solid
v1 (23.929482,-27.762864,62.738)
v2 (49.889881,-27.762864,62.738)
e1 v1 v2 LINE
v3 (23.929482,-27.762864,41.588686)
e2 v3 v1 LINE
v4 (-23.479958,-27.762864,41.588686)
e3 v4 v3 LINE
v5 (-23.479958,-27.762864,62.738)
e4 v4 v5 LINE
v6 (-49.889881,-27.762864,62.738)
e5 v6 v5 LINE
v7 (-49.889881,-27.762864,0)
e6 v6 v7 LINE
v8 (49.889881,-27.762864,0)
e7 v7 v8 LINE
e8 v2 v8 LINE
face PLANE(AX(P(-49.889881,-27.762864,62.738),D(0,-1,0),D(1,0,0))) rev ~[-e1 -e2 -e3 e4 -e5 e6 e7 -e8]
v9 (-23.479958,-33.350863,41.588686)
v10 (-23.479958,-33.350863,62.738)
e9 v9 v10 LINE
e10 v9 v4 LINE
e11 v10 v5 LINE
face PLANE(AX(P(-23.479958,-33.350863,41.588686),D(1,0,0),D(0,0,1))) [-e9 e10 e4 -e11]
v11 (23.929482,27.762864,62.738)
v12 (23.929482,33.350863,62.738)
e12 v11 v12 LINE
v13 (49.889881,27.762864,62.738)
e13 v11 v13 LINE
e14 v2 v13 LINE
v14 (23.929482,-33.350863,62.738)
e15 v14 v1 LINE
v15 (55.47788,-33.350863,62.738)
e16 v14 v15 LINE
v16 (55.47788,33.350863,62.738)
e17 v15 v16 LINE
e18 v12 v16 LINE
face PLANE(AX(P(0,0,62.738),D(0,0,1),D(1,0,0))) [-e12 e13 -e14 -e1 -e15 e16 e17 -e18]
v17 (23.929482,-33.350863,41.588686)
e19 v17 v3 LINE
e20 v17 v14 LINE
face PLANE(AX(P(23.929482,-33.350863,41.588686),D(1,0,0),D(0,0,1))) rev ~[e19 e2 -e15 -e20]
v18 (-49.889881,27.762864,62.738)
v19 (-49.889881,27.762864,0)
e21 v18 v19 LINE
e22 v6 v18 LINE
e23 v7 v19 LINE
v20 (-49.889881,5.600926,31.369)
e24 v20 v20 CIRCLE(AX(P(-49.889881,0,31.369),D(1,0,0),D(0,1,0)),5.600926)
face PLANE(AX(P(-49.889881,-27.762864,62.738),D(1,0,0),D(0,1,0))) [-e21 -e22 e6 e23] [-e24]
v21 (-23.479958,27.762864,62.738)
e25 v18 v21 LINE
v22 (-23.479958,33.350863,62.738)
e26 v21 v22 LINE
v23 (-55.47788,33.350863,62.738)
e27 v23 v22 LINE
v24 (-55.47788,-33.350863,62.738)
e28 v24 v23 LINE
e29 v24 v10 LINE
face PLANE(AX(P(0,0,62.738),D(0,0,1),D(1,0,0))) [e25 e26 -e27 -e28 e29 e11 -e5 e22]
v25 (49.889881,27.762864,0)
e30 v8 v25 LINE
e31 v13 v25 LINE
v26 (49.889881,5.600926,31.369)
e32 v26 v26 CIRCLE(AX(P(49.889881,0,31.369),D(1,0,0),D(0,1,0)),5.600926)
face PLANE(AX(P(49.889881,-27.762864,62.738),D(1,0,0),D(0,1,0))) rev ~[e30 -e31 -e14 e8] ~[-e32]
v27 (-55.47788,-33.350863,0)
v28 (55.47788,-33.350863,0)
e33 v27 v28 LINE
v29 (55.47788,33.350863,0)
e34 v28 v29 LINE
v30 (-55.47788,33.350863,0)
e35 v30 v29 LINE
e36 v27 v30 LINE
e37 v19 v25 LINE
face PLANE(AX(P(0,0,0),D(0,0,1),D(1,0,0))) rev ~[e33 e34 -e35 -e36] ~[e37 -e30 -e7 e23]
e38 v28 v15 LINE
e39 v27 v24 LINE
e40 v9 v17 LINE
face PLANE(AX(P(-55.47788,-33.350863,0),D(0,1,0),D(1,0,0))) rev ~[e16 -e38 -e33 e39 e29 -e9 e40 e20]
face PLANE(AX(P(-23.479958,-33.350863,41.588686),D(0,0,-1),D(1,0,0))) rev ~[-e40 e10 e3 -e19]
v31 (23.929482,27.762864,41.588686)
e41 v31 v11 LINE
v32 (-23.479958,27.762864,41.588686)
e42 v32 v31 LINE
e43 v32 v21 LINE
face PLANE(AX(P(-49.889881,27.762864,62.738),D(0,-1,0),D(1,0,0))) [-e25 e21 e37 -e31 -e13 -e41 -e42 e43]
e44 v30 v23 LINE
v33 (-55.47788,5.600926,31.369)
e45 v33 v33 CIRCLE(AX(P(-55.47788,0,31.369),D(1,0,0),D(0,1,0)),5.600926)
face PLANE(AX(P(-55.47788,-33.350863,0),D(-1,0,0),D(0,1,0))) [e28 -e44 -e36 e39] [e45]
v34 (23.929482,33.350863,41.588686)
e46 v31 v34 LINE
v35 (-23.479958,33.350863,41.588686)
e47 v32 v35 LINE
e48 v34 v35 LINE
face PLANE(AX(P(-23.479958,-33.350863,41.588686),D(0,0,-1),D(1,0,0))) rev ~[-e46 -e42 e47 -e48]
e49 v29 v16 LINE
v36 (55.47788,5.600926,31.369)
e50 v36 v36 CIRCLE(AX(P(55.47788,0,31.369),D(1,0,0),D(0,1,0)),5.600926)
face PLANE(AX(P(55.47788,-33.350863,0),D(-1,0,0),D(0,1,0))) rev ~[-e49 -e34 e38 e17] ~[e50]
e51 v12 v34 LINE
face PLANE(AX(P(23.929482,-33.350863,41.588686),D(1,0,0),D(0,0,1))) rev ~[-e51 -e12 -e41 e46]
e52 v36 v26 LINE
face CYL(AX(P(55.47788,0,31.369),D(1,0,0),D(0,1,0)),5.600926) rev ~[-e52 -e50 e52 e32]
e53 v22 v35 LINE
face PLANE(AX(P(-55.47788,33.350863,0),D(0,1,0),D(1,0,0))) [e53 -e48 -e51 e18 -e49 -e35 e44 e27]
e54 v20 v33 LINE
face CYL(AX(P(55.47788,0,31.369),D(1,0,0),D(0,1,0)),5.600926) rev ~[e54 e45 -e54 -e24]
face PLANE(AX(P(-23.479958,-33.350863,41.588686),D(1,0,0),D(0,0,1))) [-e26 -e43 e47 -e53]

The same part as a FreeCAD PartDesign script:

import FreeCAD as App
import Part
import Sketcher

V = App.Vector
Q = App.Units.Quantity


def add_polygon(sketch, points):
    """Adds a closed chain of lines whose ends are joined by coincident constraints."""
    first, n = sketch.GeometryCount, len(points)
    for a, b in zip(points, points[1:] + points[:1]):
        sketch.addGeometry(Part.LineSegment(App.Vector(*a, 0), App.Vector(*b, 0)), False)
    for i in range(n):
        sketch.addConstraint(Sketcher.Constraint("Coincident", first + i, 2, first + (i + 1) % n, 1))

doc = App.newDocument("Part")
body = doc.addObject("PartDesign::Body", "Body")

# Sketch on XY plane
sketch1 = body.newObject("Sketcher::SketchObject", "Sketch")
sketch1.AttachmentSupport = (doc.getObject("XY_Plane"), [""])
sketch1.MapMode = "FlatFace"
add_polygon(sketch1, [(-55, 33), (-55, -33), (55, -33), (55, 33)])  # lines 0-3
sketch1.addConstraint([
    Sketcher.Constraint("Vertical", 0),
    Sketcher.Constraint("Horizontal", 1),
    Sketcher.Constraint("Vertical", 2),
    Sketcher.Constraint("Horizontal", 3),
    Sketcher.Constraint("Symmetric", 0, 2, 2, 2, -1, 1),
    Sketcher.Constraint("DistanceX", 1, 1, 1, 2, 110.95576),
    Sketcher.Constraint("DistanceY", 0, 2, 0, 1, 66.701726),
])
pad1 = body.newObject("PartDesign::Pad", "Pad")
pad1.Profile = sketch1
pad1.Length = Q("2.47 in")

# Sketch on YZ plane
sketch2 = body.newObject("Sketcher::SketchObject", "Sketch001")
sketch2.AttachmentSupport = (doc.getObject("YZ_Plane"), [""])
sketch2.MapMode = "FlatFace"
sketch2.AttachmentOffset = App.Placement(V(0, 0, 55.47788), App.Rotation())
sketch2.addGeometry(Part.Circle(V(0, 31, 0), V(0, 0, 1), 6), False)
sketch2.addConstraint([
    Sketcher.Constraint("PointOnObject", 0, 3, -2),
    Sketcher.Constraint("DistanceY", -1, 1, 0, 3, Q("1.235 in")),
    Sketcher.Constraint("Diameter", 0, 11.201852),
])
pocket1 = body.newObject("PartDesign::Pocket", "Pocket")
pocket1.Profile = sketch2
pocket1.Type = "ThroughAll"

# Sketch on XY plane
sketch3 = body.newObject("Sketcher::SketchObject", "Sketch002")
sketch3.AttachmentSupport = (doc.getObject("XY_Plane"), [""])
sketch3.MapMode = "FlatFace"
sketch3.AttachmentOffset = App.Placement(V(0, 0, 2.47 * 25.4), App.Rotation())
add_polygon(sketch3, [(-50, 28), (-50, -28), (50, -28), (50, 28)])  # lines 0-3
sketch3.addConstraint([
    Sketcher.Constraint("Vertical", 0),
    Sketcher.Constraint("Horizontal", 1),
    Sketcher.Constraint("Vertical", 2),
    Sketcher.Constraint("Horizontal", 3),
    Sketcher.Constraint("Symmetric", 0, 2, 2, 2, -1, 1),
    Sketcher.Constraint("DistanceX", 1, 1, 1, 2, 99.779762),
    Sketcher.Constraint("DistanceY", 0, 2, 0, 1, 55.525728),
])
pocket2 = body.newObject("PartDesign::Pocket", "Pocket001")
pocket2.Profile = sketch3
pocket2.Type = "ThroughAll"

# Sketch on XZ plane
sketch4 = body.newObject("Sketcher::SketchObject", "Sketch003")
sketch4.AttachmentSupport = (doc.getObject("XZ_Plane"), [""])
sketch4.MapMode = "FlatFace"
sketch4.AttachmentOffset = App.Placement(V(0, 0, 33.350863), App.Rotation())
add_polygon(sketch4, [(-23, 63), (-23, 42), (24, 42), (24, 63)])  # lines 0-3
sketch4.addConstraint([
    Sketcher.Constraint("Vertical", 0),
    Sketcher.Constraint("Horizontal", 1),
    Sketcher.Constraint("Vertical", 2),
    Sketcher.Constraint("Horizontal", 3),
    Sketcher.Constraint("DistanceY", -1, 1, 2, 2, Q("2.47 in")),
    Sketcher.Constraint("DistanceX", 1, 1, 1, 2, 47.409441),
    Sketcher.Constraint("DistanceY", 0, 2, 0, 1, 21.149314),
    Sketcher.Constraint("DistanceX", 0, 2, -1, 1, 23.479958),
])
pocket3 = body.newObject("PartDesign::Pocket", "Pocket002")
pocket3.Profile = sketch4
pocket3.Type = "ThroughAll"

doc.recompute()
